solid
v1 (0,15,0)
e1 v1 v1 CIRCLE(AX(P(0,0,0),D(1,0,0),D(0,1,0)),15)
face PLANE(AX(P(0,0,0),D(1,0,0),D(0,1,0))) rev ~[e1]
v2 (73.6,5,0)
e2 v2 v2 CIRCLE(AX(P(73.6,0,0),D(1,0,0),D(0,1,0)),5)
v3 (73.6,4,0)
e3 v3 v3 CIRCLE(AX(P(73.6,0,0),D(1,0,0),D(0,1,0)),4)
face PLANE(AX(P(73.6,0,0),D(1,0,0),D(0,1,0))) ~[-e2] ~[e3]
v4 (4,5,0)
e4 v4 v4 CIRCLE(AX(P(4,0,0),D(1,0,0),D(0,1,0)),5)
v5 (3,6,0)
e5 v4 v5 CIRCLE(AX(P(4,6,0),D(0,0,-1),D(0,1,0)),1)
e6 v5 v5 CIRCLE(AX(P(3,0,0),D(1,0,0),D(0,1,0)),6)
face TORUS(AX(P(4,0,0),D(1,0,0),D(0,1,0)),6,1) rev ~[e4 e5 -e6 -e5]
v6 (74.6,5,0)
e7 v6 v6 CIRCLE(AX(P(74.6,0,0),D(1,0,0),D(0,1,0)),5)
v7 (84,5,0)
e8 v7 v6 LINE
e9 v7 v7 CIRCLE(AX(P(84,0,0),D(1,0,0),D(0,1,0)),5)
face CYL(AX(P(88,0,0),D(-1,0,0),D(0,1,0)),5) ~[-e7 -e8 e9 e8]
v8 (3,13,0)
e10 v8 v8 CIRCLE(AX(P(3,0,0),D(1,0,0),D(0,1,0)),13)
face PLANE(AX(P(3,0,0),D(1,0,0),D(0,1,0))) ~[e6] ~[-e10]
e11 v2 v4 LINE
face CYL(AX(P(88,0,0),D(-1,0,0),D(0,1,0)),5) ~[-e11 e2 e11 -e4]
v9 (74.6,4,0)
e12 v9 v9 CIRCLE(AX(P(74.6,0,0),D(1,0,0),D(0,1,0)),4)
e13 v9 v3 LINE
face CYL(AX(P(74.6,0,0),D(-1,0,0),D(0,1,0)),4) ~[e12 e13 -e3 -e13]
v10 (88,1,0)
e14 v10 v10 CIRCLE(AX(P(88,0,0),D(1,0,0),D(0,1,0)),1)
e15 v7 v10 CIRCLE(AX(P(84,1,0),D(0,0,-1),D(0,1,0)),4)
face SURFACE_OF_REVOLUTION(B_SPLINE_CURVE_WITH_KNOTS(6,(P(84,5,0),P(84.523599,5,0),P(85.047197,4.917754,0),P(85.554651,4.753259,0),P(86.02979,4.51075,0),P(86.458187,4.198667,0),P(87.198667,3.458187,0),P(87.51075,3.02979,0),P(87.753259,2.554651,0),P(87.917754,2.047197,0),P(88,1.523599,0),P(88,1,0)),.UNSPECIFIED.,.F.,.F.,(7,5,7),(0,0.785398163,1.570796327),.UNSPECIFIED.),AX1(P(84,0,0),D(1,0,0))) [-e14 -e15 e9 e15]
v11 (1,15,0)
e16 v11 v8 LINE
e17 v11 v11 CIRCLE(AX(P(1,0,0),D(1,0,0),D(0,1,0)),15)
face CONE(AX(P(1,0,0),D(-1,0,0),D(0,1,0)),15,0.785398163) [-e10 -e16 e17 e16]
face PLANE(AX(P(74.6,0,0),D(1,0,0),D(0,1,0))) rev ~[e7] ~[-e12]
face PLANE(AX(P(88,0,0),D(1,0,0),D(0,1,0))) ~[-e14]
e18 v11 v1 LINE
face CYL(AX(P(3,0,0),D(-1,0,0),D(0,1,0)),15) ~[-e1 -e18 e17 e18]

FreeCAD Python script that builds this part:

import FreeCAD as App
import Part
import Sketcher
Q = App.Units.Quantity


def edges_at(feature, points):
    """Names of the edges that pass closest to the given points."""
    edges = feature.Shape.Edges
    near = lambda p: min(range(len(edges)), key=lambda i: edges[i].distToShape(Part.Vertex(*p))[0])
    return sorted({f"Edge{near(p) + 1}" for p in points})

doc = App.newDocument("Part")
body = doc.addObject("PartDesign::Body", "Body")

sketch1 = doc.addObject("Sketcher::SketchObject", "Sketch")
body.addObject(sketch1)
sketch1.AttachmentSupport = (doc.XY_Plane, [""])
sketch1.MapMode = "FlatFace"
sketch1.addGeometry(Part.LineSegment(App.Vector(0, 15, 0), App.Vector(0, 0, 0)), False)
sketch1.addGeometry(Part.LineSegment(App.Vector(0, 0, 0), App.Vector(88, 0, 0)), False)
sketch1.addGeometry(Part.LineSegment(App.Vector(88, 0, 0), App.Vector(88, 5, 0)), False)
sketch1.addGeometry(Part.LineSegment(App.Vector(88, 5, 0), App.Vector(3, 5, 0)), False)
sketch1.addGeometry(Part.LineSegment(App.Vector(3, 5, 0), App.Vector(3, 15, 0)), False)
sketch1.addGeometry(Part.LineSegment(App.Vector(3, 15, 0), App.Vector(0, 15, 0)), False)
sketch1.addConstraint(Sketcher.Constraint("Coincident", 0, 2, 1, 1))
sketch1.addConstraint(Sketcher.Constraint("Coincident", 1, 2, 2, 1))
sketch1.addConstraint(Sketcher.Constraint("Coincident", 2, 2, 3, 1))
sketch1.addConstraint(Sketcher.Constraint("Coincident", 3, 2, 4, 1))
sketch1.addConstraint(Sketcher.Constraint("Coincident", 4, 2, 5, 1))
sketch1.addConstraint(Sketcher.Constraint("Coincident", 5, 2, 0, 1))
sketch1.addConstraint(Sketcher.Constraint("Vertical", 0))
sketch1.addConstraint(Sketcher.Constraint("Horizontal", 1))
sketch1.addConstraint(Sketcher.Constraint("Vertical", 2))
sketch1.addConstraint(Sketcher.Constraint("Horizontal", 3))
sketch1.addConstraint(Sketcher.Constraint("Vertical", 4))
sketch1.addConstraint(Sketcher.Constraint("Horizontal", 5))
sketch1.addConstraint(Sketcher.Constraint("Coincident", 0, 2, -1, 1))
sketch1.addConstraint(Sketcher.Constraint("DistanceX", 1, 1, 1, 2, Q("88 mm")))
sketch1.addConstraint(Sketcher.Constraint("DistanceX", 5, 2, 5, 1, Q("3 mm")))
sketch1.addConstraint(Sketcher.Constraint("DistanceY", 0, 2, 0, 1, Q("15 mm")))
sketch1.addConstraint(Sketcher.Constraint("DistanceY", 2, 1, 2, 2, Q("5 mm")))
revolution = doc.addObject("PartDesign::Revolution", "Revolution")
body.addObject(revolution)
revolution.Profile = sketch1
revolution.ReferenceAxis = (sketch1, ["H_Axis"])
revolution.Angle = 360
doc.recompute()

chamfer = doc.addObject("PartDesign::Chamfer", "Chamfer")
body.addObject(chamfer)
chamfer.Base = (revolution, edges_at(revolution, [(3, -15, 0)]))
chamfer.Size = 2
doc.recompute()

fillet = doc.addObject("PartDesign::Fillet", "Fillet")
body.addObject(fillet)
fillet.Base = (chamfer, edges_at(chamfer, [(88, -5, 0)]))
fillet.Radius = 4
doc.recompute()

fillet2 = doc.addObject("PartDesign::Fillet", "Fillet001")
body.addObject(fillet2)
fillet2.Base = (fillet, edges_at(fillet, [(3, -5, 0)]))
fillet2.Radius = 1

sketch2 = doc.addObject("Sketcher::SketchObject", "Sketch001")
body.addObject(sketch2)
sketch2.AttachmentSupport = (doc.XY_Plane, [""])
sketch2.MapMode = "FlatFace"
sketch2.addGeometry(Part.LineSegment(App.Vector(74.6, 5, 0), App.Vector(73.6, 5, 0)), False)
sketch2.addGeometry(Part.LineSegment(App.Vector(73.6, 5, 0), App.Vector(73.6, 4, 0)), False)
sketch2.addGeometry(Part.LineSegment(App.Vector(73.6, 4, 0), App.Vector(74.6, 4, 0)), False)
sketch2.addGeometry(Part.LineSegment(App.Vector(74.6, 4, 0), App.Vector(74.6, 5, 0)), False)
sketch2.addConstraint(Sketcher.Constraint("Coincident", 0, 2, 1, 1))
sketch2.addConstraint(Sketcher.Constraint("Coincident", 1, 2, 2, 1))
sketch2.addConstraint(Sketcher.Constraint("Coincident", 2, 2, 3, 1))
sketch2.addConstraint(Sketcher.Constraint("Coincident", 3, 2, 0, 1))
sketch2.addConstraint(Sketcher.Constraint("Horizontal", 0))
sketch2.addConstraint(Sketcher.Constraint("Vertical", 1))
sketch2.addConstraint(Sketcher.Constraint("Horizontal", 2))
sketch2.addConstraint(Sketcher.Constraint("Vertical", 3))
sketch2.addConstraint(Sketcher.Constraint("Equal", 2, 1))
sketch2.addConstraint(Sketcher.Constraint("DistanceX", 0, 2, 0, 1, Q("1 mm")))
sketch2.addConstraint(Sketcher.Constraint("DistanceY", -1, 1, 1, 2, Q("4 mm")))
sketch2.addConstraint(Sketcher.Constraint("DistanceX", -1, 1, 0, 2, Q("73.6 mm")))
groove = doc.addObject("PartDesign::Groove", "Groove")
body.addObject(groove)
groove.Profile = sketch2
groove.ReferenceAxis = (sketch2, ["H_Axis"])
groove.Angle = 360

doc.recompute()
